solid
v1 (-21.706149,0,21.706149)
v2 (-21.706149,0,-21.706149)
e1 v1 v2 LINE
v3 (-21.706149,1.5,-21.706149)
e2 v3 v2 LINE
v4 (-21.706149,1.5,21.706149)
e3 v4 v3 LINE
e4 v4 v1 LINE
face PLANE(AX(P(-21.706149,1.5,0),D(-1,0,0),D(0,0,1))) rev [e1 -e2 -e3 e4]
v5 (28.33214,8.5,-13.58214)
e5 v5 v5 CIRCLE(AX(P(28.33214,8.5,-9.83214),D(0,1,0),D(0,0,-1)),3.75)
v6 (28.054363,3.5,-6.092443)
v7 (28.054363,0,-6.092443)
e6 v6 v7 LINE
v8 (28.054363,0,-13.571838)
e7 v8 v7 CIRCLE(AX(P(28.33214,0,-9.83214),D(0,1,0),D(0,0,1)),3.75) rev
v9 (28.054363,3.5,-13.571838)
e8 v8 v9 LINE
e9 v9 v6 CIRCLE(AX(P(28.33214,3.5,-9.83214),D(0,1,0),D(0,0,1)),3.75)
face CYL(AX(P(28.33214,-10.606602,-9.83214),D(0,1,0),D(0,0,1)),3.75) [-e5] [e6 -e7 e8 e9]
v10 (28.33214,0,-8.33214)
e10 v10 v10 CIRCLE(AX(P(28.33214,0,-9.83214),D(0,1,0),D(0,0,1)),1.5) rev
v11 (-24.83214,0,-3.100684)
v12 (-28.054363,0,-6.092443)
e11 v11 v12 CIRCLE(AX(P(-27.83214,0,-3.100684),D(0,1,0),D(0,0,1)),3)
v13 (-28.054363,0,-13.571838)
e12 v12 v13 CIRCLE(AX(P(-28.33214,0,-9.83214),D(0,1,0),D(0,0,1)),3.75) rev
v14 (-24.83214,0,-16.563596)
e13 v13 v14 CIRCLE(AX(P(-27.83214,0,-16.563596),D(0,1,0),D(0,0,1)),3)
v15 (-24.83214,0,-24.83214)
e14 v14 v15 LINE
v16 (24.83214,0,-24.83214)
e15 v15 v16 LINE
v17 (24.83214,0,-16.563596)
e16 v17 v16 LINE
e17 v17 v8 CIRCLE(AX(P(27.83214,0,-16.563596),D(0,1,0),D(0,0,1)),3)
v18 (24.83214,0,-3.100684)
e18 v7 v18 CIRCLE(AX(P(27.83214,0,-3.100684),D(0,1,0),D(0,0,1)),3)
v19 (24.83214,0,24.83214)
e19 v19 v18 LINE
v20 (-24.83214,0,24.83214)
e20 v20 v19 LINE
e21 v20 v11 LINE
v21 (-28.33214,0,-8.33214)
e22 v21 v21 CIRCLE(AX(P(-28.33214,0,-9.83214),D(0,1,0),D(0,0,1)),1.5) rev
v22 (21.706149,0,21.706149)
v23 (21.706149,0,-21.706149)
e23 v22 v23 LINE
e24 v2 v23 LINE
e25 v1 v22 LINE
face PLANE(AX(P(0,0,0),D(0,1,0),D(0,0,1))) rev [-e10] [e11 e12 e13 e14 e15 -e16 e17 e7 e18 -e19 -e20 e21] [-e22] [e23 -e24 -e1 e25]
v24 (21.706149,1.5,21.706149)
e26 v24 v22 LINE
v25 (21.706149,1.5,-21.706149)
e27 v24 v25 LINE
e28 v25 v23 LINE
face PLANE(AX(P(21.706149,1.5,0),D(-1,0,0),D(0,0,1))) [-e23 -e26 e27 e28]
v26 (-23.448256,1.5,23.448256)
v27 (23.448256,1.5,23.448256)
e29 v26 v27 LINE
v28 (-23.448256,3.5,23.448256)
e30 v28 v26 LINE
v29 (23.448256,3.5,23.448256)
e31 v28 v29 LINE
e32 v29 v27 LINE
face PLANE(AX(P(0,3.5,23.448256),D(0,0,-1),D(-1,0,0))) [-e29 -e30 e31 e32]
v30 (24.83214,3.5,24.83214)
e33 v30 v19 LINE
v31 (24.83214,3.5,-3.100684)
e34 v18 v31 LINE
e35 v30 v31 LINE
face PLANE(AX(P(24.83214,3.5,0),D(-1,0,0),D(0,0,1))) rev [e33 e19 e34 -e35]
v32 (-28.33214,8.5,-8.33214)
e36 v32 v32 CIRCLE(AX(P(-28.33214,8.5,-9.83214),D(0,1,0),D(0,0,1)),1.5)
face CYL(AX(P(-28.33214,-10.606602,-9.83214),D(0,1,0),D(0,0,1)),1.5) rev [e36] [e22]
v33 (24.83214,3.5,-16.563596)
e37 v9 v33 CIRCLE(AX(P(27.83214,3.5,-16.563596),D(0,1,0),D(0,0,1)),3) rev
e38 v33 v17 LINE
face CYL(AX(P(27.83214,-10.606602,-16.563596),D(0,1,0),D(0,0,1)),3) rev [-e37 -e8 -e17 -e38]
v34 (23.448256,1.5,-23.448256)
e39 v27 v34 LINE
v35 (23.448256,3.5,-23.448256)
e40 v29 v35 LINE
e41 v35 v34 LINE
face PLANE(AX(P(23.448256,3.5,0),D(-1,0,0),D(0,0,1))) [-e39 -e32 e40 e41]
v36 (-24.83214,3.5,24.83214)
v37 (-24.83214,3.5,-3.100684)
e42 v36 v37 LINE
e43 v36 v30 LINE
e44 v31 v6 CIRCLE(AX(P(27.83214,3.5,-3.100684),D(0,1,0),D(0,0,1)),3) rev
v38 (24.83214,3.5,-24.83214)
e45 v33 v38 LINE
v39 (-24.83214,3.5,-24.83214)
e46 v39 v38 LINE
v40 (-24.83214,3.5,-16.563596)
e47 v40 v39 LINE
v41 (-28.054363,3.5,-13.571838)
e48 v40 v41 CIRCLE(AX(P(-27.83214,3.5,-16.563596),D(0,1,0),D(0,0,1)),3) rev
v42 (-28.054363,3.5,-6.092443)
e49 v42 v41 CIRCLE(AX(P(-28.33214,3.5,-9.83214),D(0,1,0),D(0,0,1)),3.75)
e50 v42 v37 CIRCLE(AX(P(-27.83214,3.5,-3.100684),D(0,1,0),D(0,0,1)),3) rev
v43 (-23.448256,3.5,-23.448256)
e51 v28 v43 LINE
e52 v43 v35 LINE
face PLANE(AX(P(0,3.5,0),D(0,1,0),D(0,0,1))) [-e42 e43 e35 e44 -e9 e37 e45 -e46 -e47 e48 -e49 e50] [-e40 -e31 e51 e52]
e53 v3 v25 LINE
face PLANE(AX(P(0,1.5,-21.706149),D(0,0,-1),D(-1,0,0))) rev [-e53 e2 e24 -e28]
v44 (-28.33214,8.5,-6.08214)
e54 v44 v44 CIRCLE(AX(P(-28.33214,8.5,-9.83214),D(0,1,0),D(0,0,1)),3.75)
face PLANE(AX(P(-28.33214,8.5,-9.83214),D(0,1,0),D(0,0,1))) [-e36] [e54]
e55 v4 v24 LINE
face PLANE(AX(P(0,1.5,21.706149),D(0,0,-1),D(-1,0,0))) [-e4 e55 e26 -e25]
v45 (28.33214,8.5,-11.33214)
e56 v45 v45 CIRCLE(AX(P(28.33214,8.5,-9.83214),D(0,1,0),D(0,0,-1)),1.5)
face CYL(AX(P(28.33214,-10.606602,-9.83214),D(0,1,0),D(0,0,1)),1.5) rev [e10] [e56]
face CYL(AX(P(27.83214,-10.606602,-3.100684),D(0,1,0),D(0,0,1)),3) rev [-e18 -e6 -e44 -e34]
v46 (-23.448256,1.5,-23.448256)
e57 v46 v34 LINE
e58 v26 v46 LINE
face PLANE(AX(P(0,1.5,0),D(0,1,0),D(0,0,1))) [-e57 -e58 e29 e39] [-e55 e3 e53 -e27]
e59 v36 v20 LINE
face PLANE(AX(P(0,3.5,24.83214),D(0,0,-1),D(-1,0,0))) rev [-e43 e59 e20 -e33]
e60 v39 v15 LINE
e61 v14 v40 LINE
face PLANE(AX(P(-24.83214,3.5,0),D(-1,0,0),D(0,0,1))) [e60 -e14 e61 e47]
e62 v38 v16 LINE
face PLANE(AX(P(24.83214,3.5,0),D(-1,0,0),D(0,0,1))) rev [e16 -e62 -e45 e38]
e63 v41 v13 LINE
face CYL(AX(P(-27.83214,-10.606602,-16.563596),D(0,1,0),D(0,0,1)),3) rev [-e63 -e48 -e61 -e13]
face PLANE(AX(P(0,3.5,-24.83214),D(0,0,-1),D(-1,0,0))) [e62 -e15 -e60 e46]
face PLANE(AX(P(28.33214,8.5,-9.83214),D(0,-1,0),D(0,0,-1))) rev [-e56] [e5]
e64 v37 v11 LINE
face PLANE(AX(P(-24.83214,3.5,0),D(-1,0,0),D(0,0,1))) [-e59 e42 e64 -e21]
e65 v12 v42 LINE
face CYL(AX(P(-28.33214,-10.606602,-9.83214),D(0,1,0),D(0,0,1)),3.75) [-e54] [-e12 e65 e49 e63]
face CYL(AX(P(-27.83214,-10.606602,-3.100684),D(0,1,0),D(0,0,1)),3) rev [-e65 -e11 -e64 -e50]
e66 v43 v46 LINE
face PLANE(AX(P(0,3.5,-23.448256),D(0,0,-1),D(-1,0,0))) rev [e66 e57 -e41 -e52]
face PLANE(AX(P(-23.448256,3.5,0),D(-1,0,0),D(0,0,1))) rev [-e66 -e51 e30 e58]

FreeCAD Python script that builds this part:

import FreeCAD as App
import Part
import Sketcher
from FreeCAD import Vector
Q = App.Units.Quantity


def edges_at(feature, points):
    """Names of the edges that pass closest to the given points."""
    edges = feature.Shape.Edges
    near = lambda p: min(range(len(edges)), key=lambda i: edges[i].distToShape(Part.Vertex(*p))[0])
    return sorted({f"Edge{near(p) + 1}" for p in points})

doc = App.newDocument("Part")
body = doc.addObject("PartDesign::Body", "Body")

sketch1 = body.newObject("Sketcher::SketchObject", "Sketch")
sketch1.AttachmentSupport = (doc.getObject("XZ_Plane"), [""])
sketch1.MapMode = "FlatFace"
sketch1.addGeometry([
    Part.LineSegment(Vector(-23.448256, -23.448256, 0), Vector(-23.448256, 23.448256, 0)),
    Part.LineSegment(Vector(-23.448256, 23.448256, 0), Vector(23.448256, 23.448256, 0)),
    Part.LineSegment(Vector(23.448256, 23.448256, 0), Vector(23.448256, -23.448256, 0)),
    Part.LineSegment(Vector(23.448256, -23.448256, 0), Vector(-23.448256, -23.448256, 0)),
    Part.LineSegment(Vector(21.706149, 21.706149, 0), Vector(-21.706149, 21.706149, 0)),
    Part.LineSegment(Vector(-21.706149, 21.706149, 0), Vector(-21.706149, -21.706149, 0)),
    Part.LineSegment(Vector(-21.706149, -21.706149, 0), Vector(21.706149, -21.706149, 0)),
    Part.LineSegment(Vector(21.706149, -21.706149, 0), Vector(21.706149, 21.706149, 0)),
], False)
sketch1.addConstraint([
    Sketcher.Constraint("Coincident", 0, 2, 1, 1),
    Sketcher.Constraint("Coincident", 1, 2, 2, 1),
    Sketcher.Constraint("Coincident", 2, 2, 3, 1),
    Sketcher.Constraint("Coincident", 3, 2, 0, 1),
    Sketcher.Constraint("Coincident", 4, 2, 5, 1),
    Sketcher.Constraint("Coincident", 5, 2, 6, 1),
    Sketcher.Constraint("Coincident", 6, 2, 7, 1),
    Sketcher.Constraint("Coincident", 7, 2, 4, 1),
    Sketcher.Constraint("Vertical", 0),
    Sketcher.Constraint("Horizontal", 1),
    Sketcher.Constraint("Vertical", 2),
    Sketcher.Constraint("Horizontal", 3),
    Sketcher.Constraint("Horizontal", 4),
    Sketcher.Constraint("Vertical", 5),
    Sketcher.Constraint("Horizontal", 6),
    Sketcher.Constraint("Vertical", 7),
    Sketcher.Constraint("Symmetric", 0, 2, 2, 2, -1, 1),
    Sketcher.Constraint("Symmetric", 4, 2, 6, 2, -1, 1),
    Sketcher.Constraint("Equal", 3, 0),
    Sketcher.Constraint("Equal", 6, 5),
    Sketcher.Constraint("DistanceX", 4, 2, 4, 1, Q("43.412298 mm")),
    Sketcher.Constraint("DistanceX", 1, 1, 1, 2, Q("46.896511 mm")),
])
pad1 = body.newObject("PartDesign::Pad", "Pad")
pad1.Profile = sketch1
pad1.Length = 1.5
pad1.Reversed = True

sketch2 = body.newObject("Sketcher::SketchObject", "Sketch001")
sketch2.AttachmentSupport = (doc.getObject("XZ_Plane"), [""])
sketch2.MapMode = "FlatFace"
sketch2.addGeometry([
    Part.LineSegment(Vector(-24.83214, -24.83214, 0), Vector(-24.83214, 24.83214, 0)),
    Part.LineSegment(Vector(-24.83214, 24.83214, 0), Vector(24.83214, 24.83214, 0)),
    Part.LineSegment(Vector(24.83214, 24.83214, 0), Vector(24.83214, -24.83214, 0)),
    Part.LineSegment(Vector(24.83214, -24.83214, 0), Vector(-24.83214, -24.83214, 0)),
    Part.LineSegment(Vector(23.448256, 23.448256, 0), Vector(-23.448256, 23.448256, 0)),
    Part.LineSegment(Vector(-23.448256, 23.448256, 0), Vector(-23.448256, -23.448256, 0)),
    Part.LineSegment(Vector(-23.448256, -23.448256, 0), Vector(23.448256, -23.448256, 0)),
    Part.LineSegment(Vector(23.448256, -23.448256, 0), Vector(23.448256, 23.448256, 0)),
], False)
sketch2.addConstraint([
    Sketcher.Constraint("Coincident", 0, 2, 1, 1),
    Sketcher.Constraint("Coincident", 1, 2, 2, 1),
    Sketcher.Constraint("Coincident", 2, 2, 3, 1),
    Sketcher.Constraint("Coincident", 3, 2, 0, 1),
    Sketcher.Constraint("Coincident", 4, 2, 5, 1),
    Sketcher.Constraint("Coincident", 5, 2, 6, 1),
    Sketcher.Constraint("Coincident", 6, 2, 7, 1),
    Sketcher.Constraint("Coincident", 7, 2, 4, 1),
    Sketcher.Constraint("Vertical", 0),
    Sketcher.Constraint("Horizontal", 1),
    Sketcher.Constraint("Vertical", 2),
    Sketcher.Constraint("Horizontal", 3),
    Sketcher.Constraint("Horizontal", 4),
    Sketcher.Constraint("Vertical", 5),
    Sketcher.Constraint("Horizontal", 6),
    Sketcher.Constraint("Vertical", 7),
    Sketcher.Constraint("Symmetric", 0, 2, 2, 2, -1, 1),
    Sketcher.Constraint("Symmetric", 4, 2, 6, 2, -1, 1),
    Sketcher.Constraint("Equal", 3, 0),
    Sketcher.Constraint("Equal", 6, 5),
    Sketcher.Constraint("DistanceX", 1, 1, 1, 2, Q("49.664281 mm")),
    Sketcher.Constraint("DistanceX", 4, 2, 4, 1, Q("46.896511 mm")),
])
pad2 = body.newObject("PartDesign::Pad", "Pad001")
pad2.Profile = sketch2
pad2.Length = 3.5
pad2.Reversed = True

sketch3 = body.newObject("Sketcher::SketchObject", "Sketch002")
sketch3.AttachmentSupport = (doc.getObject("XZ_Plane"), [""])
sketch3.MapMode = "FlatFace"
sketch3.addGeometry([
    Part.Circle(Vector(-28.33214, -9.83214, 0), Vector(0, 0, 1), 3.75),
    Part.Circle(Vector(-28.33214, -9.83214, 0), Vector(0, 0, 1), 1.5),
    Part.Circle(Vector(28.33214, -9.83214, 0), Vector(0, 0, 1), 3.75),
    Part.Circle(Vector(28.33214, -9.83214, 0), Vector(0, 0, 1), 1.5),
], False)
sketch3.addConstraint([
    Sketcher.Constraint("Coincident", 1, 3, 0, 3),
    Sketcher.Constraint("Coincident", 3, 3, 2, 3),
    Sketcher.Constraint("Equal", 0, 2),
    Sketcher.Constraint("Equal", 1, 3),
    Sketcher.Constraint("Symmetric", 0, 3, 2, 3, -2),
    Sketcher.Constraint("Diameter", 1, Q("3 mm")),
    Sketcher.Constraint("Diameter", 0, Q("7.5 mm")),
    Sketcher.Constraint("DistanceX", 0, 3, -1, 1, Q("28.33214 mm")),
    Sketcher.Constraint("DistanceY", 0, 3, -1, 1, Q("9.83214 mm")),
])
pad3 = body.newObject("PartDesign::Pad", "Pad002")
pad3.Profile = sketch3
pad3.Length = 8.5
pad3.Reversed = True
doc.recompute()

fillet = body.newObject("PartDesign::Fillet", "Fillet")
fillet.Base = (pad3, edges_at(pad3, [
    (-24.832, 1.75, -8.486),
    (-24.832, 1.75, -11.178),
    (24.832, 1.75, -8.486),
    (24.832, 1.75, -11.178),
]))
fillet.Radius = 3

doc.recompute()
